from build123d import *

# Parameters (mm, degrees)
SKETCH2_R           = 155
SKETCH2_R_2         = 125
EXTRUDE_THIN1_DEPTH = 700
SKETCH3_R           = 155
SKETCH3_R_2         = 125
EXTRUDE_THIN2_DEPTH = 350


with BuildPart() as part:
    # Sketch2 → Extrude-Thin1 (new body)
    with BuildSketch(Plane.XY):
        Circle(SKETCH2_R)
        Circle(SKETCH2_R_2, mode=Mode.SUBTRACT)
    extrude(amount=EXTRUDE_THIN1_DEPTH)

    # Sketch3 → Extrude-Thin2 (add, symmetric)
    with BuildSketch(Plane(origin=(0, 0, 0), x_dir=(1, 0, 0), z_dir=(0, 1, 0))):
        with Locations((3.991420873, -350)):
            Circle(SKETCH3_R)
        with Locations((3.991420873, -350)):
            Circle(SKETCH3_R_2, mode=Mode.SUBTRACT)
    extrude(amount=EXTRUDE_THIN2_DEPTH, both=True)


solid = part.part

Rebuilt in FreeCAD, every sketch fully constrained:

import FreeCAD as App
import Part
import Sketcher

V = App.Vector

doc = App.newDocument("Part")
body = doc.addObject("PartDesign::Body", "Body")

# Sketch on XY plane
sketch1 = body.newObject("Sketcher::SketchObject", "Sketch")
sketch1.AttachmentSupport = (doc.getObject("XY_Plane"), [""])
sketch1.MapMode = "FlatFace"
sketch1.addGeometry([
    Part.Circle(V(0, 0, 0), V(0, 0, 1), 155),
    Part.Circle(V(0, 0, 0), V(0, 0, 1), 125),
], False)
sketch1.addConstraint([
    Sketcher.Constraint("Coincident", 0, 3, -1, 1),
    Sketcher.Constraint("Coincident", 1, 3, -1, 1),
    Sketcher.Constraint("Diameter", 0, 310.0),
    Sketcher.Constraint("Diameter", 1, 250.0),
])
pad1 = body.newObject("PartDesign::Pad", "Pad")
pad1.Profile = sketch1
pad1.Length = 700

# Sketch on XZ plane
sketch2 = body.newObject("Sketcher::SketchObject", "Sketch001")
sketch2.AttachmentSupport = (doc.getObject("XZ_Plane"), [""])
sketch2.MapMode = "FlatFace"
sketch2.addGeometry([
    Part.Circle(V(3.991421, 350, 0), V(0, 0, 1), 155),
    Part.Circle(V(3.991421, 350, 0), V(0, 0, 1), 125),
], False)
sketch2.addConstraint([
    Sketcher.Constraint("Coincident", 1, 3, 0, 3),
    Sketcher.Constraint("Diameter", 0, 310.0),
    Sketcher.Constraint("Diameter", 1, 250.0),
    Sketcher.Constraint("DistanceY", -1, 1, 0, 3, 350.0),
    Sketcher.Constraint("DistanceX", -1, 1, 0, 3, 3.991421),
])
pad2 = body.newObject("PartDesign::Pad", "Pad001")
pad2.Profile = sketch2
pad2.Length = 700
pad2.Midplane = True

doc.recompute()
